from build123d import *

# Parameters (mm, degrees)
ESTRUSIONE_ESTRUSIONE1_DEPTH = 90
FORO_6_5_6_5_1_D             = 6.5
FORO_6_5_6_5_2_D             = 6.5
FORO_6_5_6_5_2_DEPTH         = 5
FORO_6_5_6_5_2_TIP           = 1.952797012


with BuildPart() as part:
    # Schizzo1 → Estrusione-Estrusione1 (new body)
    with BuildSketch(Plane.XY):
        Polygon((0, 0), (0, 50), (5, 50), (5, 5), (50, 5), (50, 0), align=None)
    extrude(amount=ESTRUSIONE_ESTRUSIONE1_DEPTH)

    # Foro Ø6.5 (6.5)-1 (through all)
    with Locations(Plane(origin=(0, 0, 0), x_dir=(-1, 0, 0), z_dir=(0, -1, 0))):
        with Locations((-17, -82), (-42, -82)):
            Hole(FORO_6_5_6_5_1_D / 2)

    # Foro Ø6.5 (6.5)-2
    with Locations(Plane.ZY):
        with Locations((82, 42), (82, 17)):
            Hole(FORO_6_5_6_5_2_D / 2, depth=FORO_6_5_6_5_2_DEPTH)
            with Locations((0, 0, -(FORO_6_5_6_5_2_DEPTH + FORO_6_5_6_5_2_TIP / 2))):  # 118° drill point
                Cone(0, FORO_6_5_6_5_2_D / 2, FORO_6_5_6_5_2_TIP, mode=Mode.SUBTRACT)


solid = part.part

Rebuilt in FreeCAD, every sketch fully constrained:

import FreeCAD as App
import Part
import Sketcher
from FreeCAD import Vector
Q = App.Units.Quantity


def add_polygon(sketch, points):
    """Adds a closed chain of lines whose ends are joined by coincident constraints."""
    first, n = sketch.GeometryCount, len(points)
    for a, b in zip(points, points[1:] + points[:1]):
        sketch.addGeometry(Part.LineSegment(App.Vector(*a, 0), App.Vector(*b, 0)), False)
    for i in range(n):
        sketch.addConstraint(Sketcher.Constraint("Coincident", first + i, 2, first + (i + 1) % n, 1))

doc = App.newDocument("Part")
body = doc.addObject("PartDesign::Body", "Body")

# Sketch on XY plane
sketch1 = doc.addObject("Sketcher::SketchObject", "Sketch")
body.addObject(sketch1)
sketch1.AttachmentSupport = (doc.XY_Plane, [""])
sketch1.MapMode = "FlatFace"
add_polygon(sketch1, [(0, 50), (0, 0), (50, 0), (50, 5), (5, 5), (5, 50)])  # lines 0-5
sketch1.addConstraint(Sketcher.Constraint("Vertical", 0))
sketch1.addConstraint(Sketcher.Constraint("Horizontal", 1))
sketch1.addConstraint(Sketcher.Constraint("Vertical", 2))
sketch1.addConstraint(Sketcher.Constraint("Horizontal", 3))
sketch1.addConstraint(Sketcher.Constraint("Vertical", 4))
sketch1.addConstraint(Sketcher.Constraint("Horizontal", 5))
sketch1.addConstraint(Sketcher.Constraint("Coincident", 0, 2, -1, 1))
sketch1.addConstraint(Sketcher.Constraint("Equal", 1, 0))
sketch1.addConstraint(Sketcher.Constraint("Equal", 5, 2))
sketch1.addConstraint(Sketcher.Constraint("DistanceX", 1, 1, 1, 2, Q("50 mm")))
sketch1.addConstraint(Sketcher.Constraint("DistanceX", 3, 2, 3, 1, Q("45 mm")))
pad1 = doc.addObject("PartDesign::Pad", "Pad")
body.addObject(pad1)
pad1.Profile = sketch1
pad1.Length = 90

# Sketch on XZ plane
sketch2 = doc.addObject("Sketcher::SketchObject", "Sketch001")
body.addObject(sketch2)
sketch2.AttachmentSupport = (doc.XZ_Plane, [""])
sketch2.MapMode = "FlatFace"
sketch2.addGeometry(Part.Circle(Vector(17, 82, 0), Vector(0, 0, 1), 3.2), False)
sketch2.addGeometry(Part.Circle(Vector(42, 82, 0), Vector(0, 0, 1), 3.2), False)
sketch2.addConstraint(Sketcher.Constraint("Equal", 0, 1))
sketch2.addConstraint(Sketcher.Constraint("Horizontal", 0, 3, 1, 3))
sketch2.addConstraint(Sketcher.Constraint("Diameter", 0, Q("6.5 mm")))
sketch2.addConstraint(Sketcher.Constraint("DistanceX", -1, 1, 0, 3, Q("17 mm")))
sketch2.addConstraint(Sketcher.Constraint("DistanceY", -1, 1, 0, 3, Q("82 mm")))
sketch2.addConstraint(Sketcher.Constraint("DistanceX", -1, 1, 1, 3, Q("42 mm")))
doc.recompute()
hole = doc.addObject("PartDesign::Hole", "Hole")
body.addObject(hole)
hole.Profile = sketch2
hole.ThreadType = "None"
hole.Diameter = 6.5
hole.DepthType = "ThroughAll"

# Sketch on YZ plane
sketch3 = doc.addObject("Sketcher::SketchObject", "Sketch002")
body.addObject(sketch3)
sketch3.AttachmentSupport = (doc.YZ_Plane, [""])
sketch3.MapMode = "FlatFace"
sketch3.addGeometry(Part.Circle(Vector(42, 82, 0), Vector(0, 0, 1), 3.2), False)
sketch3.addGeometry(Part.Circle(Vector(17, 82, 0), Vector(0, 0, 1), 3.2), False)
sketch3.addConstraint(Sketcher.Constraint("Equal", 0, 1))
sketch3.addConstraint(Sketcher.Constraint("Horizontal", 0, 3, 1, 3))
sketch3.addConstraint(Sketcher.Constraint("Diameter", 0, Q("6.5 mm")))
sketch3.addConstraint(Sketcher.Constraint("DistanceX", -1, 1, 0, 3, Q("42 mm")))
sketch3.addConstraint(Sketcher.Constraint("DistanceY", -1, 1, 0, 3, Q("82 mm")))
sketch3.addConstraint(Sketcher.Constraint("DistanceX", -1, 1, 1, 3, Q("17 mm")))
doc.recompute()
hole2 = doc.addObject("PartDesign::Hole", "Hole001")
body.addObject(hole2)
hole2.Profile = sketch3
hole2.ThreadType = "None"
hole2.Diameter = 6.5
hole2.DepthType = "Dimension"
hole2.Depth = 5
hole2.DrillPoint = "Angled"
hole2.DrillPointAngle = 118
hole2.Reversed = True

doc.recompute()
